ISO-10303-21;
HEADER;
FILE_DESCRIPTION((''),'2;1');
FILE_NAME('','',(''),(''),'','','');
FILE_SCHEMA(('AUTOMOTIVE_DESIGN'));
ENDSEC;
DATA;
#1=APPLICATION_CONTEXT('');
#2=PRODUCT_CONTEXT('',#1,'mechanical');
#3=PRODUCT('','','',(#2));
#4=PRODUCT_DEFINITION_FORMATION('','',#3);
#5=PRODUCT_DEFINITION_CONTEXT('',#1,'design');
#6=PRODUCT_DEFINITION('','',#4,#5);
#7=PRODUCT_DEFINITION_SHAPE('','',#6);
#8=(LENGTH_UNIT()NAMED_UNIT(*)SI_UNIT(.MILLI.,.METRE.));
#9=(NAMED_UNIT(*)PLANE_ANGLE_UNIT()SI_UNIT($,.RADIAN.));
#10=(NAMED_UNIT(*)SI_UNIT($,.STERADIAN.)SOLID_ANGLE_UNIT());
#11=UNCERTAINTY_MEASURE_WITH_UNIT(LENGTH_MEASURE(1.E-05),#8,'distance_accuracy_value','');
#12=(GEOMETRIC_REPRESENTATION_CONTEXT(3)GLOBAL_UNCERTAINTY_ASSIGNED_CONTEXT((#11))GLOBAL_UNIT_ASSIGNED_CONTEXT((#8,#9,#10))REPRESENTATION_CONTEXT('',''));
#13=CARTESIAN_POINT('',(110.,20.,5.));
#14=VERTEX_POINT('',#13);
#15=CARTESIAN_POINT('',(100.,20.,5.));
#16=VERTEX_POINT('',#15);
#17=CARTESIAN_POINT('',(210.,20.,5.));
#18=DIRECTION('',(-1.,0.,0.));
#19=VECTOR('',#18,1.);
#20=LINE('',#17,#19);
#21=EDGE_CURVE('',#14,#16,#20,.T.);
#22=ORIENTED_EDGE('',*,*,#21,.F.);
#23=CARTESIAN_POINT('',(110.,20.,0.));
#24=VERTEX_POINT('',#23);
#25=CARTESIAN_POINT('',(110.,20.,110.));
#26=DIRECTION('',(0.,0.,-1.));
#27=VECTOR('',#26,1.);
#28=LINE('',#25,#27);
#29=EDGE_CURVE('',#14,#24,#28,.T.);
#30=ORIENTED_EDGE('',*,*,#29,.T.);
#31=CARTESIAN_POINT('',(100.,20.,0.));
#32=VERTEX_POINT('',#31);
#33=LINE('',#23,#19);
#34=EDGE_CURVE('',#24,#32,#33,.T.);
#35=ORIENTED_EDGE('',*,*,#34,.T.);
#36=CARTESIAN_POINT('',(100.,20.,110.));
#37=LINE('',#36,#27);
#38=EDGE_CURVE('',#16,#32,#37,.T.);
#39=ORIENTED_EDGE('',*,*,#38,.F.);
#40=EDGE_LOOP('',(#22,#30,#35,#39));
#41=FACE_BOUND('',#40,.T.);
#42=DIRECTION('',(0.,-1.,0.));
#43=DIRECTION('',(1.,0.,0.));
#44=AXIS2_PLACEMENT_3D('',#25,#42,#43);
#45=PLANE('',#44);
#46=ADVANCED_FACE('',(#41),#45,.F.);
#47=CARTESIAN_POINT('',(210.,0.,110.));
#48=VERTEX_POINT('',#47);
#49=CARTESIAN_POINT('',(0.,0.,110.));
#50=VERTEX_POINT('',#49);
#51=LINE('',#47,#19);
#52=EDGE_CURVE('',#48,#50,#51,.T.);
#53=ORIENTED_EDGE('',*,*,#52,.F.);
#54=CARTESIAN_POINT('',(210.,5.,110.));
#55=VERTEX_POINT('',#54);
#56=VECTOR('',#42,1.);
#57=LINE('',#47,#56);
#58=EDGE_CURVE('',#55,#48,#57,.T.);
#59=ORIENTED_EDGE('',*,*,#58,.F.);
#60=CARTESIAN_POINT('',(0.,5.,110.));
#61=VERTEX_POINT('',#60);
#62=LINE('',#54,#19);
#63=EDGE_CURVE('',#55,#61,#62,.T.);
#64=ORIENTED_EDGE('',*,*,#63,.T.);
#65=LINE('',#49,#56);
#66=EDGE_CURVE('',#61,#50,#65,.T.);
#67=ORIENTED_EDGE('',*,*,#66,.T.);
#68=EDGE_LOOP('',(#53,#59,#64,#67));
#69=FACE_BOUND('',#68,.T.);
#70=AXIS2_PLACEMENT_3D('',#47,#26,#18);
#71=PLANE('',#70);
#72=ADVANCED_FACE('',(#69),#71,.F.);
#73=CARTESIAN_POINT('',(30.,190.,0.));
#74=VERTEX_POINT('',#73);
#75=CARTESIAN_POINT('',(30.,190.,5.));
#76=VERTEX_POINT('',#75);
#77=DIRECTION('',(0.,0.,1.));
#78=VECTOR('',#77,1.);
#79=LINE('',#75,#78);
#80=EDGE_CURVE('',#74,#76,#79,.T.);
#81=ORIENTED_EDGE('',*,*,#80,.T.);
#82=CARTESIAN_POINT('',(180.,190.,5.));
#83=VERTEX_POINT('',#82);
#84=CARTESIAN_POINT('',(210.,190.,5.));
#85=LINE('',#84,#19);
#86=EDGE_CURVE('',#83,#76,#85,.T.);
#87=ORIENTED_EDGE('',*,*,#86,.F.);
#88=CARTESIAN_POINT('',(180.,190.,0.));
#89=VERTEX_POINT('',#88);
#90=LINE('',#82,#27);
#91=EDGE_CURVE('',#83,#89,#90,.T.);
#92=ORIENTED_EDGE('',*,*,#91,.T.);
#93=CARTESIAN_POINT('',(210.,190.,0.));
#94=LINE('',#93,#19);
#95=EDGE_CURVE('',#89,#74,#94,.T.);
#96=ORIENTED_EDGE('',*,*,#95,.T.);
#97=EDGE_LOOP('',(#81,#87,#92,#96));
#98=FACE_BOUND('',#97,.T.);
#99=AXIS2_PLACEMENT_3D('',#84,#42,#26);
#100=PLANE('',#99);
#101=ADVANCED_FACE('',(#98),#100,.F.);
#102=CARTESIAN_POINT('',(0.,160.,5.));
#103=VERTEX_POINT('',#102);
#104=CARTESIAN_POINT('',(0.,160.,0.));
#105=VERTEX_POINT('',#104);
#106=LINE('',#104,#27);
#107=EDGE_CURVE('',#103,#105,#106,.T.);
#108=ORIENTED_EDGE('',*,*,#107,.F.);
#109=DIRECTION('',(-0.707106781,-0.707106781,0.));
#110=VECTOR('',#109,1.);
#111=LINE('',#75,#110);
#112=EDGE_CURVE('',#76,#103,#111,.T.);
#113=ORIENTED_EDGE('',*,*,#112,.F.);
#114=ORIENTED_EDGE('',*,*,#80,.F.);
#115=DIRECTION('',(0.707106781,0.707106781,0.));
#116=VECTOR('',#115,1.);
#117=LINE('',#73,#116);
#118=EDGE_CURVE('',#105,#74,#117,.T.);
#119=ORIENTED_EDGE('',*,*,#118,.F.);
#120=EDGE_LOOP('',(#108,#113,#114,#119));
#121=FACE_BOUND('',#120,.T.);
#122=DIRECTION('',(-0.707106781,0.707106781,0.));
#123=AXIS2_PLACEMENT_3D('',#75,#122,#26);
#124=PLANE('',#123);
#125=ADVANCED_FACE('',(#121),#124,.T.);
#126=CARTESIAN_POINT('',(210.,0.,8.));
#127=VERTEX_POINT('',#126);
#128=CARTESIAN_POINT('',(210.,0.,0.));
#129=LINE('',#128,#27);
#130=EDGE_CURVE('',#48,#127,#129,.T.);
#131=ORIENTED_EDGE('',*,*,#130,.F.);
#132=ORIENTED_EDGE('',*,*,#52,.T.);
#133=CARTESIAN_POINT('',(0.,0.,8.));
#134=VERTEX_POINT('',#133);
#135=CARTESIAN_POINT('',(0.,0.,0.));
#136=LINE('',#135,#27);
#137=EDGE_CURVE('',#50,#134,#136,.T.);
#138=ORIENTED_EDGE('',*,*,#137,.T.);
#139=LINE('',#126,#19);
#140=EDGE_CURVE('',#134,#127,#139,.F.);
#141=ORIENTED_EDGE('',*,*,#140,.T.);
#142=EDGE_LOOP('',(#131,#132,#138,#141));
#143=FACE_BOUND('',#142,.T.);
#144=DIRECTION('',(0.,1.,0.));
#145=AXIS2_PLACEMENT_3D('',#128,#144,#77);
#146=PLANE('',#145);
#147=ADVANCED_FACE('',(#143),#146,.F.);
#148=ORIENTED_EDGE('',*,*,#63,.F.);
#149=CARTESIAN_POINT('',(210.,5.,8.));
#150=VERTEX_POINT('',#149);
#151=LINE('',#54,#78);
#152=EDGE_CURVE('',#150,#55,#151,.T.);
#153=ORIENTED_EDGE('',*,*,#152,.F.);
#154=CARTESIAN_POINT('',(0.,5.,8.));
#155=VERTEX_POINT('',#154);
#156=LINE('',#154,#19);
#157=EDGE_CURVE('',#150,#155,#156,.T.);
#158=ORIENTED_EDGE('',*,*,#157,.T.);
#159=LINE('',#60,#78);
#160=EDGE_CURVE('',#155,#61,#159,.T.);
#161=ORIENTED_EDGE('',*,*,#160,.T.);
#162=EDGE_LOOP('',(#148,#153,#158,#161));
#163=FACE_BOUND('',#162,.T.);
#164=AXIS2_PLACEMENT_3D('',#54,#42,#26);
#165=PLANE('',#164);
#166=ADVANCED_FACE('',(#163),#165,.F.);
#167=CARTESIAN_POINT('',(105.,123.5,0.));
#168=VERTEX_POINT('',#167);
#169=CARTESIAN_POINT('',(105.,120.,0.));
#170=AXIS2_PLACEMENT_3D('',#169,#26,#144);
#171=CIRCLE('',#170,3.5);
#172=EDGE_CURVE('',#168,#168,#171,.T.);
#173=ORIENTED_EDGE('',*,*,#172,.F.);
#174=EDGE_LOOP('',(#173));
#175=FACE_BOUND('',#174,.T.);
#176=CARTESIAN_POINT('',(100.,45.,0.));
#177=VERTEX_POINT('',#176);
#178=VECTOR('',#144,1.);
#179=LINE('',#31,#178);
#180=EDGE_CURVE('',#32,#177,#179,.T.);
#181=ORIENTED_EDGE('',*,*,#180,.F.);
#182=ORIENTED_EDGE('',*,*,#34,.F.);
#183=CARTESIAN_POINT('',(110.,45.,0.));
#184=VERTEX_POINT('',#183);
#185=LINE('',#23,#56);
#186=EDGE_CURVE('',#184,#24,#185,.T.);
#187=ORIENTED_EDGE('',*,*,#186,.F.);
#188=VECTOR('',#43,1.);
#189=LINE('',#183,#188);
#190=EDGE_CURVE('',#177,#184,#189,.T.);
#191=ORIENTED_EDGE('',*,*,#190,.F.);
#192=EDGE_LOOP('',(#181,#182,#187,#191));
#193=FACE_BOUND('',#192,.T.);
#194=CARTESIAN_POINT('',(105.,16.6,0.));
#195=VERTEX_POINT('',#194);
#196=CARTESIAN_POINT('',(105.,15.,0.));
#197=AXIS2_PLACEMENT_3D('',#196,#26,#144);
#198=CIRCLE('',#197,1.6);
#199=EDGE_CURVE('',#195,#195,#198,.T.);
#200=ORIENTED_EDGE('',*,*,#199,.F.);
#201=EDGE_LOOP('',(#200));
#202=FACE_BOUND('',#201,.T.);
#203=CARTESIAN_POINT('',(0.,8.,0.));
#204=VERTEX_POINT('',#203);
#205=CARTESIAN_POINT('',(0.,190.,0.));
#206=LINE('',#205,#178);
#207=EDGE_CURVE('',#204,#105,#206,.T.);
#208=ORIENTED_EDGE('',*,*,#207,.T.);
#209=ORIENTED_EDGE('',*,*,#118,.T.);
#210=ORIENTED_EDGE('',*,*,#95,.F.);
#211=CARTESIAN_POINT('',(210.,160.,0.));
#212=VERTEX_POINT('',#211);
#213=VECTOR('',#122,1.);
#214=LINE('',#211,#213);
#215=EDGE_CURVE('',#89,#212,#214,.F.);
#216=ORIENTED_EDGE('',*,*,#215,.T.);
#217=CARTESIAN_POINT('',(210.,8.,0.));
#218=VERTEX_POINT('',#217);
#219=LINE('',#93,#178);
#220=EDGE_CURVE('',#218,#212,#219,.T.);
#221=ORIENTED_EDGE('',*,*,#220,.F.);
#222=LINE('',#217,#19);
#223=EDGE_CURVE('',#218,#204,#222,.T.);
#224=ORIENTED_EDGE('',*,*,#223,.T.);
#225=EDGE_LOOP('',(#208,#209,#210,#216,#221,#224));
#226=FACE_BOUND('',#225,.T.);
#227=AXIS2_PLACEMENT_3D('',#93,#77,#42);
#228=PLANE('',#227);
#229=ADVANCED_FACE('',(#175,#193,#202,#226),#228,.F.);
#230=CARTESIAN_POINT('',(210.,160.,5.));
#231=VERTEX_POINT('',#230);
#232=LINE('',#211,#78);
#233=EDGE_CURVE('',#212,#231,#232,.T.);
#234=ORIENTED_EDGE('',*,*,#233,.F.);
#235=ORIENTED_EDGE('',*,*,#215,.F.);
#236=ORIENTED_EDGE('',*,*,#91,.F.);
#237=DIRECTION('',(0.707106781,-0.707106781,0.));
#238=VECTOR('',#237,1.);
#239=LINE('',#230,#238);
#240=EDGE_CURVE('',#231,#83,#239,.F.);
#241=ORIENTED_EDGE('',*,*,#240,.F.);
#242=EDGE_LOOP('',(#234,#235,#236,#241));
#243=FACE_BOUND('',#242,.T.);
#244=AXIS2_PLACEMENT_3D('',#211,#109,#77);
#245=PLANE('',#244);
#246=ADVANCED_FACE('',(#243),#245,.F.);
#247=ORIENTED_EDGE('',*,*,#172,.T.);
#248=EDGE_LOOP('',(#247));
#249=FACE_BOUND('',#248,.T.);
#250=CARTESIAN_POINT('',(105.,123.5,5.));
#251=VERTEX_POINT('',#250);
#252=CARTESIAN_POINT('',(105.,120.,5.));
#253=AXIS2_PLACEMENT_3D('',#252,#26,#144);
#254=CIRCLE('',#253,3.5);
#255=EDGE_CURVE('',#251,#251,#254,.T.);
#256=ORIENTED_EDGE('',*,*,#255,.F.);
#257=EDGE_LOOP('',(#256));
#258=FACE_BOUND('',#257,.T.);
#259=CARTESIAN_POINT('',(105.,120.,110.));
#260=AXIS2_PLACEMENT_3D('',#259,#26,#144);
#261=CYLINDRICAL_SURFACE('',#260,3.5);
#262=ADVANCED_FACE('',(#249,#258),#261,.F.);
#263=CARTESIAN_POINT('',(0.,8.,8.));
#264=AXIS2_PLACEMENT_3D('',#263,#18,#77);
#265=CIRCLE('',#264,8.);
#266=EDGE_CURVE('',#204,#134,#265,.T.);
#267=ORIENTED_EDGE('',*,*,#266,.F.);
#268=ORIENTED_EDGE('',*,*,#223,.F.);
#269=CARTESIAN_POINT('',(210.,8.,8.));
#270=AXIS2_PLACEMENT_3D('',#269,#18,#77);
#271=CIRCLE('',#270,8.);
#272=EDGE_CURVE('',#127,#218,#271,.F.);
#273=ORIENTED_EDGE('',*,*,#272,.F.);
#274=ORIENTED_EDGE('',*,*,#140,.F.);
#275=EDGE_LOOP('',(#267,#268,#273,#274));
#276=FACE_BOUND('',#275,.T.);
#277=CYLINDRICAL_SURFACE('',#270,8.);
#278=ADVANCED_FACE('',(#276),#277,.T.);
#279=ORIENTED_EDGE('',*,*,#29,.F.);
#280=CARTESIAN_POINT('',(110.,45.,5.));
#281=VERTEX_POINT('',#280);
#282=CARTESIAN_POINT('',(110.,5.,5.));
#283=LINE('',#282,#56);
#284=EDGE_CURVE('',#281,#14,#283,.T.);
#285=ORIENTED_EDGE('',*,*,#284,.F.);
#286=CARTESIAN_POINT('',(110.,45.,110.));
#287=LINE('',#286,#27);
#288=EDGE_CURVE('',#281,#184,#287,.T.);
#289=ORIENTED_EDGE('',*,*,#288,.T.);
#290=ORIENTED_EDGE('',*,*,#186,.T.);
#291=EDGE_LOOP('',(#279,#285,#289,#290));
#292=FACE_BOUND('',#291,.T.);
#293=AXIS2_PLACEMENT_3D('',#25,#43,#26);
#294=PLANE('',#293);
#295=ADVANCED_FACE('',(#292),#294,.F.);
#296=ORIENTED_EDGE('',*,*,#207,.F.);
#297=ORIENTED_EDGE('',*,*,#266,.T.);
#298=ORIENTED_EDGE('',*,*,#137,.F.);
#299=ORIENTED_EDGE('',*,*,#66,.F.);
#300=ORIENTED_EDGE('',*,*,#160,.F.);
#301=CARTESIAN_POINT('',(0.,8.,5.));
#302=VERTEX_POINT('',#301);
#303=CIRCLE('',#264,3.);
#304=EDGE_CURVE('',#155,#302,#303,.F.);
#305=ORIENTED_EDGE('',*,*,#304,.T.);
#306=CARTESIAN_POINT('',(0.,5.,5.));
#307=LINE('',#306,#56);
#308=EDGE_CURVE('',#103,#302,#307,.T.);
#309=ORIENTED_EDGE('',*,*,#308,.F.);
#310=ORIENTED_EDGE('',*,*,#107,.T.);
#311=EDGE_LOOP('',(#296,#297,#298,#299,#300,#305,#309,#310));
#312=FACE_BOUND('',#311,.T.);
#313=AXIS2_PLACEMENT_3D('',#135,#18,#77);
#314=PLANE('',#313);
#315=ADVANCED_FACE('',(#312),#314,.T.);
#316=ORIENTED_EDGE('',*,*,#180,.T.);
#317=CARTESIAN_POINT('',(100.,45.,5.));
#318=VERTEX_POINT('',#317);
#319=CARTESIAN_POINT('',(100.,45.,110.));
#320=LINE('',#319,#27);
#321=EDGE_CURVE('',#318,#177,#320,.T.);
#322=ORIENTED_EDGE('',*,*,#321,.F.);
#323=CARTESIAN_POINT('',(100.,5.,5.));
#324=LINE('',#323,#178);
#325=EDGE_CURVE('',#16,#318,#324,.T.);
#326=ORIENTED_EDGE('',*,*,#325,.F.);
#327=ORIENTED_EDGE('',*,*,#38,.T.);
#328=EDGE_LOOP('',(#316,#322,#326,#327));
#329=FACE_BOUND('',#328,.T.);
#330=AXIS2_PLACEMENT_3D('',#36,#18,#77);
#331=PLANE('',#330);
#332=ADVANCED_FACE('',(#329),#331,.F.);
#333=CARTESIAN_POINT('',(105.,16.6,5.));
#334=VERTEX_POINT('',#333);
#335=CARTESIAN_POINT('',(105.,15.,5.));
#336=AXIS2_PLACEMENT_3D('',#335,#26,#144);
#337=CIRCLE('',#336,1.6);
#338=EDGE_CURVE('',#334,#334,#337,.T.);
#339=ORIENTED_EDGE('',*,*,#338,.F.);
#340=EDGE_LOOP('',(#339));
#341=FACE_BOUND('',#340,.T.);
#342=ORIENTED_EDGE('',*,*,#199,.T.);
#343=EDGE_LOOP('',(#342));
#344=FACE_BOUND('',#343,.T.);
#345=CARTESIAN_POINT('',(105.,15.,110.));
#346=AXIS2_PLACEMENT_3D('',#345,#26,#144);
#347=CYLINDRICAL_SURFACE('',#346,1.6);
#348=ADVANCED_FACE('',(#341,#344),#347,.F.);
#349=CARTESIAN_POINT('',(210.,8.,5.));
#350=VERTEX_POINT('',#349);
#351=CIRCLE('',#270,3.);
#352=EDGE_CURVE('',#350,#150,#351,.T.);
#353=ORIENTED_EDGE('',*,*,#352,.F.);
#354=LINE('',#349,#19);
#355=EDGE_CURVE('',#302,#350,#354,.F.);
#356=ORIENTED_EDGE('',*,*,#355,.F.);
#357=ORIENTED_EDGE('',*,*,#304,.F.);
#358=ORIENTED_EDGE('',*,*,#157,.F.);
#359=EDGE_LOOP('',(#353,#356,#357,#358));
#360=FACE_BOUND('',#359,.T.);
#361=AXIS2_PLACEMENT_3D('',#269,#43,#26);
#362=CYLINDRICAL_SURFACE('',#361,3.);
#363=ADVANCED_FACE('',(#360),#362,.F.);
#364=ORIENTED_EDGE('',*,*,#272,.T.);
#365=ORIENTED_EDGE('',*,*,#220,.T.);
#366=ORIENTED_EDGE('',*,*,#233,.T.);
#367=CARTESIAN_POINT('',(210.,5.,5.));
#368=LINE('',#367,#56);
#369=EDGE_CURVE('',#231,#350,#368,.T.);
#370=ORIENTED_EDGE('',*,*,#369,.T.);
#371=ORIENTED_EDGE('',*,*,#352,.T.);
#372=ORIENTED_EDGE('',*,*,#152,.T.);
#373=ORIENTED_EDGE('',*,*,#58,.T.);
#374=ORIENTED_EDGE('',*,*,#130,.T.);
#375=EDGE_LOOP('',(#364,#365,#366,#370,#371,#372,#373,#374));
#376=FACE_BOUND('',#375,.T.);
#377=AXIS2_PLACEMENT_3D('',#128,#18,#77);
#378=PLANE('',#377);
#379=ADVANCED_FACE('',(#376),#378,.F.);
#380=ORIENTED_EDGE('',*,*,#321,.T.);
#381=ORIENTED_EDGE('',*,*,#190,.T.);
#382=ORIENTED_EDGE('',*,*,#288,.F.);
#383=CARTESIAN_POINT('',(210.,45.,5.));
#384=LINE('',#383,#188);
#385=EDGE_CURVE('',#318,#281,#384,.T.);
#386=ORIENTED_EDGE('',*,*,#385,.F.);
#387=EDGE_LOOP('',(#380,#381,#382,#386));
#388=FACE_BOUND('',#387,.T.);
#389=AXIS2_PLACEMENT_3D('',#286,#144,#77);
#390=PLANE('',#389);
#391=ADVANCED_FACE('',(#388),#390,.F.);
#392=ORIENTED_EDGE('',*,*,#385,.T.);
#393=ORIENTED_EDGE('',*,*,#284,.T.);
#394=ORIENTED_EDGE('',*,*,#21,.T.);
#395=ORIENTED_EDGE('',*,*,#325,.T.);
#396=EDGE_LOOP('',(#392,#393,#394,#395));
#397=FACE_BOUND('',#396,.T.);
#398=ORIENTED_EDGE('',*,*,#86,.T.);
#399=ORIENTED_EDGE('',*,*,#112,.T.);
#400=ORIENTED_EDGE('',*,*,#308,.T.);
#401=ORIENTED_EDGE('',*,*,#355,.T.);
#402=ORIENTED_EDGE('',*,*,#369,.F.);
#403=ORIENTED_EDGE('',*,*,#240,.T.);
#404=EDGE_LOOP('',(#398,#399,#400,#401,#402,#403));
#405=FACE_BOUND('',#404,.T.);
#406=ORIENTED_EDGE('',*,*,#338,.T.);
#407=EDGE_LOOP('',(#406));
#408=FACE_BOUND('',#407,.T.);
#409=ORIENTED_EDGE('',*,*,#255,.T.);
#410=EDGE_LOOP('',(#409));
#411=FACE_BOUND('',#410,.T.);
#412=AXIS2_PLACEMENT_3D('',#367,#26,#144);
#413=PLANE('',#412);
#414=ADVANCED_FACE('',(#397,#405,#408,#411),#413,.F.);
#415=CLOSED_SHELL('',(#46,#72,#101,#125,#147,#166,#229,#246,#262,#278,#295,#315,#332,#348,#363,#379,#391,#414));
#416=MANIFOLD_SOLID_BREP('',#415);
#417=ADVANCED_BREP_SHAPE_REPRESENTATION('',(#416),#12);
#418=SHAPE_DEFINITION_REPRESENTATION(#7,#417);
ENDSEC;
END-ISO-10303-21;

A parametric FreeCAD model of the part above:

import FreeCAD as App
import Part
import Sketcher
from FreeCAD import Vector


def edges_at(feature, points):
    """Names of the edges that pass closest to the given points."""
    edges = feature.Shape.Edges
    near = lambda p: min(range(len(edges)), key=lambda i: edges[i].distToShape(Part.Vertex(*p))[0])
    return sorted({f"Edge{near(p) + 1}" for p in points})

doc = App.newDocument("Part")
body = doc.addObject("PartDesign::Body", "Body")

# Sketch on YZ plane
sketch1 = body.newObject("Sketcher::SketchObject", "Sketch")
sketch1.AttachmentSupport = (doc.getObject("YZ_Plane"), [""])
sketch1.MapMode = "FlatFace"
sketch1.addGeometry([
    Part.LineSegment(Vector(0, 0, 0), Vector(190, 0, 0)),  # 0
    Part.LineSegment(Vector(190, 0, 0), Vector(190, 5, 0)),  # 1
    Part.LineSegment(Vector(190, 5, 0), Vector(5, 5, 0)),  # 2
    Part.LineSegment(Vector(5, 5, 0), Vector(5, 110, 0)),  # 3
    Part.LineSegment(Vector(5, 110, 0), Vector(0, 110, 0)),  # 4
    Part.LineSegment(Vector(0, 110, 0), Vector(0, 0, 0)),  # 5
], False)
sketch1.addConstraint([
    Sketcher.Constraint("Coincident", 0, 2, 1, 1),
    Sketcher.Constraint("Coincident", 1, 2, 2, 1),
    Sketcher.Constraint("Coincident", 2, 2, 3, 1),
    Sketcher.Constraint("Coincident", 3, 2, 4, 1),
    Sketcher.Constraint("Coincident", 4, 2, 5, 1),
    Sketcher.Constraint("Coincident", 5, 2, 0, 1),
    Sketcher.Constraint("Horizontal", 0),
    Sketcher.Constraint("Vertical", 1),
    Sketcher.Constraint("Horizontal", 2),
    Sketcher.Constraint("Vertical", 3),
    Sketcher.Constraint("Horizontal", 4),
    Sketcher.Constraint("Vertical", 5),
    Sketcher.Constraint("Coincident", 5, 2, -1, 1),
    Sketcher.Constraint("Equal", 4, 1),
    Sketcher.Constraint("DistanceX", 0, 1, 0, 2, 190.0),
    Sketcher.Constraint("DistanceX", 2, 2, 2, 1, 185.0),
    Sketcher.Constraint("DistanceY", 3, 1, 3, 2, 105.0),
])
pad1 = body.newObject("PartDesign::Pad", "Pad")
pad1.Profile = sketch1
pad1.Length = 210
doc.recompute()

fillet = body.newObject("PartDesign::Fillet", "Fillet")
fillet.Base = (pad1, edges_at(pad1, [(105, 5, 5)]))
fillet.Radius = 3
doc.recompute()

fillet2 = body.newObject("PartDesign::Fillet", "Fillet001")
fillet2.Base = (fillet, edges_at(fillet, [(105, 0, 0)]))
fillet2.Radius = 8

# Sketch on XY plane
sketch2 = body.newObject("Sketcher::SketchObject", "Sketch001")
sketch2.AttachmentSupport = (doc.getObject("XY_Plane"), [""])
sketch2.MapMode = "FlatFace"
sketch2.addGeometry([
    Part.Circle(Vector(105, 120, 0), Vector(0, 0, 1), 3.5),  # 0
    Part.Circle(Vector(105, 15, 0), Vector(0, 0, 1), 1.6),  # 1
    Part.LineSegment(Vector(110, 45, 0), Vector(110, 20, 0)),  # 2
    Part.LineSegment(Vector(110, 20, 0), Vector(100, 20, 0)),  # 3
    Part.LineSegment(Vector(100, 20, 0), Vector(100, 45, 0)),  # 4
    Part.LineSegment(Vector(100, 45, 0), Vector(110, 45, 0)),  # 5
], False)
sketch2.addConstraint([
    Sketcher.Constraint("Coincident", 2, 2, 3, 1),
    Sketcher.Constraint("Coincident", 3, 2, 4, 1),
    Sketcher.Constraint("Coincident", 4, 2, 5, 1),
    Sketcher.Constraint("Coincident", 5, 2, 2, 1),
    Sketcher.Constraint("Vertical", 2),
    Sketcher.Constraint("Horizontal", 3),
    Sketcher.Constraint("Vertical", 4),
    Sketcher.Constraint("Horizontal", 5),
    Sketcher.Constraint("Vertical", 0, 3, 1, 3),
    Sketcher.Constraint("Diameter", 0, 7.0),
    Sketcher.Constraint("Diameter", 1, 3.2),
    Sketcher.Constraint("DistanceX", 3, 2, 3, 1, 10.0),
    Sketcher.Constraint("DistanceY", 2, 2, 2, 1, 25.0),
    Sketcher.Constraint("DistanceX", -1, 1, 0, 3, 105.0),
    Sketcher.Constraint("DistanceY", -1, 1, 0, 3, 120.0),
    Sketcher.Constraint("DistanceY", -1, 1, 1, 3, 15.0),
    Sketcher.Constraint("DistanceX", -1, 1, 2, 2, 110.0),
    Sketcher.Constraint("DistanceY", -1, 1, 2, 2, 20.0),
])
pocket1 = body.newObject("PartDesign::Pocket", "Pocket")
pocket1.Profile = sketch2
pocket1.Type = "ThroughAll"
pocket1.Reversed = True
doc.recompute()

chamfer = body.newObject("PartDesign::Chamfer", "Chamfer")
chamfer.Base = (pocket1, edges_at(pocket1, [(210, 190, 2.5), (0, 190, 2.5)]))
chamfer.Size = 30

doc.recompute()
